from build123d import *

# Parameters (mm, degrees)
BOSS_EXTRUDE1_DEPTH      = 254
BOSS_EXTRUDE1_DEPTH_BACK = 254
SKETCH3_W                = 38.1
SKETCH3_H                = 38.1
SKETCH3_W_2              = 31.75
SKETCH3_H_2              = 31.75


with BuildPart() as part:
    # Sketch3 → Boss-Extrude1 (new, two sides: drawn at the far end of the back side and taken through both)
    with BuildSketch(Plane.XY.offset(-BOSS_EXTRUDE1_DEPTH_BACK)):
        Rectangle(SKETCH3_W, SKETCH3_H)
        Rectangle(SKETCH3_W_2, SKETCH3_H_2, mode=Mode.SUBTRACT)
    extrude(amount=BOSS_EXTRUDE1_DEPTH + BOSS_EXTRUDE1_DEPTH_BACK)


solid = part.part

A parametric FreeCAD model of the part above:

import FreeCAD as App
import Part
import Sketcher

V = App.Vector
Q = App.Units.Quantity

doc = App.newDocument("Part")
body = doc.addObject("PartDesign::Body", "Body")

# Sketch on XY plane
sketch1 = body.newObject("Sketcher::SketchObject", "Sketch")
sketch1.AttachmentSupport = (doc.getObject("XY_Plane"), [""])
sketch1.MapMode = "FlatFace"
sketch1.addGeometry(Part.LineSegment(V(-19.05, 19.05, 0), V(-19.05, -19.05, 0)), False)
sketch1.addGeometry(Part.LineSegment(V(-19.05, -19.05, 0), V(19.05, -19.05, 0)), False)
sketch1.addGeometry(Part.LineSegment(V(19.05, -19.05, 0), V(19.05, 19.05, 0)), False)
sketch1.addGeometry(Part.LineSegment(V(19.05, 19.05, 0), V(-19.05, 19.05, 0)), False)
sketch1.addGeometry(Part.LineSegment(V(15.875, -15.875, 0), V(-15.875, -15.875, 0)), False)
sketch1.addGeometry(Part.LineSegment(V(-15.875, -15.875, 0), V(-15.875, 15.875, 0)), False)
sketch1.addGeometry(Part.LineSegment(V(-15.875, 15.875, 0), V(15.875, 15.875, 0)), False)
sketch1.addGeometry(Part.LineSegment(V(15.875, 15.875, 0), V(15.875, -15.875, 0)), False)
sketch1.addConstraint(Sketcher.Constraint("Coincident", 0, 2, 1, 1))
sketch1.addConstraint(Sketcher.Constraint("Coincident", 1, 2, 2, 1))
sketch1.addConstraint(Sketcher.Constraint("Coincident", 2, 2, 3, 1))
sketch1.addConstraint(Sketcher.Constraint("Coincident", 3, 2, 0, 1))
sketch1.addConstraint(Sketcher.Constraint("Coincident", 4, 2, 5, 1))
sketch1.addConstraint(Sketcher.Constraint("Coincident", 5, 2, 6, 1))
sketch1.addConstraint(Sketcher.Constraint("Coincident", 6, 2, 7, 1))
sketch1.addConstraint(Sketcher.Constraint("Coincident", 7, 2, 4, 1))
sketch1.addConstraint(Sketcher.Constraint("Vertical", 0))
sketch1.addConstraint(Sketcher.Constraint("Horizontal", 1))
sketch1.addConstraint(Sketcher.Constraint("Vertical", 2))
sketch1.addConstraint(Sketcher.Constraint("Horizontal", 3))
sketch1.addConstraint(Sketcher.Constraint("Horizontal", 4))
sketch1.addConstraint(Sketcher.Constraint("Vertical", 5))
sketch1.addConstraint(Sketcher.Constraint("Horizontal", 6))
sketch1.addConstraint(Sketcher.Constraint("Vertical", 7))
sketch1.addConstraint(Sketcher.Constraint("Symmetric", 0, 2, 2, 2, -1, 1))
sketch1.addConstraint(Sketcher.Constraint("Symmetric", 4, 2, 6, 2, -1, 1))
sketch1.addConstraint(Sketcher.Constraint("Equal", 3, 0))
sketch1.addConstraint(Sketcher.Constraint("Equal", 6, 5))
sketch1.addConstraint(Sketcher.Constraint("DistanceX", 1, 1, 1, 2, Q("1.5 in")))
sketch1.addConstraint(Sketcher.Constraint("DistanceX", 4, 2, 4, 1, Q("1.25 in")))
pad1 = body.newObject("PartDesign::Pad", "Pad")
pad1.Profile = sketch1
pad1.Type = "TwoLengths"
pad1.Length = Q("10 in")
pad1.Length2 = Q("10 in")

doc.recompute()
